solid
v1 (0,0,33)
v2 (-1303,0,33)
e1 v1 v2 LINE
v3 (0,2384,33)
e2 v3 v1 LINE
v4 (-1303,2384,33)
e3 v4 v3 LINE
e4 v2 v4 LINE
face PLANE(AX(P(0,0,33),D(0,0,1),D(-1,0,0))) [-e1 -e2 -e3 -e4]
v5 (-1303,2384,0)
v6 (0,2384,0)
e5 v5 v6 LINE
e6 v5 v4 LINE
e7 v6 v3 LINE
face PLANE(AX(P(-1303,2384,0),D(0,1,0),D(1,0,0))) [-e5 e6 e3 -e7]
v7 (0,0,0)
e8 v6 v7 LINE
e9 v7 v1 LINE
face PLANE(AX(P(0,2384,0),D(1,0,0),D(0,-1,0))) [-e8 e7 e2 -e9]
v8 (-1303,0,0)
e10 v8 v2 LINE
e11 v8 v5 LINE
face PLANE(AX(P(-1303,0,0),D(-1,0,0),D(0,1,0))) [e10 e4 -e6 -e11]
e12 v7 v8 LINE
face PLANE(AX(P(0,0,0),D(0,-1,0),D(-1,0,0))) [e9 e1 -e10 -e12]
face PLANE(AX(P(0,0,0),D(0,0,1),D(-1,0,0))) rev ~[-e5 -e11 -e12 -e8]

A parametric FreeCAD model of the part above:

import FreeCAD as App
import Part
import Sketcher

V = App.Vector

doc = App.newDocument("Part")
body = doc.addObject("PartDesign::Body", "Body")

sketch1 = body.newObject("Sketcher::SketchObject", "Sketch")
sketch1.AttachmentSupport = (doc.getObject("XY_Plane"), [""])
sketch1.MapMode = "FlatFace"
sketch1.addGeometry([
    Part.LineSegment(V(-1303, 0, 0), V(0, 0, 0)),
    Part.LineSegment(V(0, 0, 0), V(0, 2384, 0)),
    Part.LineSegment(V(0, 2384, 0), V(-1303, 2384, 0)),
    Part.LineSegment(V(-1303, 2384, 0), V(-1303, 0, 0)),
], False)
sketch1.addConstraint([
    Sketcher.Constraint("Coincident", 0, 2, 1, 1),
    Sketcher.Constraint("Coincident", 1, 2, 2, 1),
    Sketcher.Constraint("Coincident", 2, 2, 3, 1),
    Sketcher.Constraint("Coincident", 3, 2, 0, 1),
    Sketcher.Constraint("Horizontal", 0),
    Sketcher.Constraint("Vertical", 1),
    Sketcher.Constraint("Horizontal", 2),
    Sketcher.Constraint("Vertical", 3),
    Sketcher.Constraint("Coincident", 0, 2, -1, 1),
    Sketcher.Constraint("DistanceX", 0, 1, 0, 2, 1303.0),
    Sketcher.Constraint("DistanceY", 1, 1, 1, 2, 2384.0),
])
pad1 = body.newObject("PartDesign::Pad", "Pad")
pad1.Profile = sketch1
pad1.Length = 33

doc.recompute()
